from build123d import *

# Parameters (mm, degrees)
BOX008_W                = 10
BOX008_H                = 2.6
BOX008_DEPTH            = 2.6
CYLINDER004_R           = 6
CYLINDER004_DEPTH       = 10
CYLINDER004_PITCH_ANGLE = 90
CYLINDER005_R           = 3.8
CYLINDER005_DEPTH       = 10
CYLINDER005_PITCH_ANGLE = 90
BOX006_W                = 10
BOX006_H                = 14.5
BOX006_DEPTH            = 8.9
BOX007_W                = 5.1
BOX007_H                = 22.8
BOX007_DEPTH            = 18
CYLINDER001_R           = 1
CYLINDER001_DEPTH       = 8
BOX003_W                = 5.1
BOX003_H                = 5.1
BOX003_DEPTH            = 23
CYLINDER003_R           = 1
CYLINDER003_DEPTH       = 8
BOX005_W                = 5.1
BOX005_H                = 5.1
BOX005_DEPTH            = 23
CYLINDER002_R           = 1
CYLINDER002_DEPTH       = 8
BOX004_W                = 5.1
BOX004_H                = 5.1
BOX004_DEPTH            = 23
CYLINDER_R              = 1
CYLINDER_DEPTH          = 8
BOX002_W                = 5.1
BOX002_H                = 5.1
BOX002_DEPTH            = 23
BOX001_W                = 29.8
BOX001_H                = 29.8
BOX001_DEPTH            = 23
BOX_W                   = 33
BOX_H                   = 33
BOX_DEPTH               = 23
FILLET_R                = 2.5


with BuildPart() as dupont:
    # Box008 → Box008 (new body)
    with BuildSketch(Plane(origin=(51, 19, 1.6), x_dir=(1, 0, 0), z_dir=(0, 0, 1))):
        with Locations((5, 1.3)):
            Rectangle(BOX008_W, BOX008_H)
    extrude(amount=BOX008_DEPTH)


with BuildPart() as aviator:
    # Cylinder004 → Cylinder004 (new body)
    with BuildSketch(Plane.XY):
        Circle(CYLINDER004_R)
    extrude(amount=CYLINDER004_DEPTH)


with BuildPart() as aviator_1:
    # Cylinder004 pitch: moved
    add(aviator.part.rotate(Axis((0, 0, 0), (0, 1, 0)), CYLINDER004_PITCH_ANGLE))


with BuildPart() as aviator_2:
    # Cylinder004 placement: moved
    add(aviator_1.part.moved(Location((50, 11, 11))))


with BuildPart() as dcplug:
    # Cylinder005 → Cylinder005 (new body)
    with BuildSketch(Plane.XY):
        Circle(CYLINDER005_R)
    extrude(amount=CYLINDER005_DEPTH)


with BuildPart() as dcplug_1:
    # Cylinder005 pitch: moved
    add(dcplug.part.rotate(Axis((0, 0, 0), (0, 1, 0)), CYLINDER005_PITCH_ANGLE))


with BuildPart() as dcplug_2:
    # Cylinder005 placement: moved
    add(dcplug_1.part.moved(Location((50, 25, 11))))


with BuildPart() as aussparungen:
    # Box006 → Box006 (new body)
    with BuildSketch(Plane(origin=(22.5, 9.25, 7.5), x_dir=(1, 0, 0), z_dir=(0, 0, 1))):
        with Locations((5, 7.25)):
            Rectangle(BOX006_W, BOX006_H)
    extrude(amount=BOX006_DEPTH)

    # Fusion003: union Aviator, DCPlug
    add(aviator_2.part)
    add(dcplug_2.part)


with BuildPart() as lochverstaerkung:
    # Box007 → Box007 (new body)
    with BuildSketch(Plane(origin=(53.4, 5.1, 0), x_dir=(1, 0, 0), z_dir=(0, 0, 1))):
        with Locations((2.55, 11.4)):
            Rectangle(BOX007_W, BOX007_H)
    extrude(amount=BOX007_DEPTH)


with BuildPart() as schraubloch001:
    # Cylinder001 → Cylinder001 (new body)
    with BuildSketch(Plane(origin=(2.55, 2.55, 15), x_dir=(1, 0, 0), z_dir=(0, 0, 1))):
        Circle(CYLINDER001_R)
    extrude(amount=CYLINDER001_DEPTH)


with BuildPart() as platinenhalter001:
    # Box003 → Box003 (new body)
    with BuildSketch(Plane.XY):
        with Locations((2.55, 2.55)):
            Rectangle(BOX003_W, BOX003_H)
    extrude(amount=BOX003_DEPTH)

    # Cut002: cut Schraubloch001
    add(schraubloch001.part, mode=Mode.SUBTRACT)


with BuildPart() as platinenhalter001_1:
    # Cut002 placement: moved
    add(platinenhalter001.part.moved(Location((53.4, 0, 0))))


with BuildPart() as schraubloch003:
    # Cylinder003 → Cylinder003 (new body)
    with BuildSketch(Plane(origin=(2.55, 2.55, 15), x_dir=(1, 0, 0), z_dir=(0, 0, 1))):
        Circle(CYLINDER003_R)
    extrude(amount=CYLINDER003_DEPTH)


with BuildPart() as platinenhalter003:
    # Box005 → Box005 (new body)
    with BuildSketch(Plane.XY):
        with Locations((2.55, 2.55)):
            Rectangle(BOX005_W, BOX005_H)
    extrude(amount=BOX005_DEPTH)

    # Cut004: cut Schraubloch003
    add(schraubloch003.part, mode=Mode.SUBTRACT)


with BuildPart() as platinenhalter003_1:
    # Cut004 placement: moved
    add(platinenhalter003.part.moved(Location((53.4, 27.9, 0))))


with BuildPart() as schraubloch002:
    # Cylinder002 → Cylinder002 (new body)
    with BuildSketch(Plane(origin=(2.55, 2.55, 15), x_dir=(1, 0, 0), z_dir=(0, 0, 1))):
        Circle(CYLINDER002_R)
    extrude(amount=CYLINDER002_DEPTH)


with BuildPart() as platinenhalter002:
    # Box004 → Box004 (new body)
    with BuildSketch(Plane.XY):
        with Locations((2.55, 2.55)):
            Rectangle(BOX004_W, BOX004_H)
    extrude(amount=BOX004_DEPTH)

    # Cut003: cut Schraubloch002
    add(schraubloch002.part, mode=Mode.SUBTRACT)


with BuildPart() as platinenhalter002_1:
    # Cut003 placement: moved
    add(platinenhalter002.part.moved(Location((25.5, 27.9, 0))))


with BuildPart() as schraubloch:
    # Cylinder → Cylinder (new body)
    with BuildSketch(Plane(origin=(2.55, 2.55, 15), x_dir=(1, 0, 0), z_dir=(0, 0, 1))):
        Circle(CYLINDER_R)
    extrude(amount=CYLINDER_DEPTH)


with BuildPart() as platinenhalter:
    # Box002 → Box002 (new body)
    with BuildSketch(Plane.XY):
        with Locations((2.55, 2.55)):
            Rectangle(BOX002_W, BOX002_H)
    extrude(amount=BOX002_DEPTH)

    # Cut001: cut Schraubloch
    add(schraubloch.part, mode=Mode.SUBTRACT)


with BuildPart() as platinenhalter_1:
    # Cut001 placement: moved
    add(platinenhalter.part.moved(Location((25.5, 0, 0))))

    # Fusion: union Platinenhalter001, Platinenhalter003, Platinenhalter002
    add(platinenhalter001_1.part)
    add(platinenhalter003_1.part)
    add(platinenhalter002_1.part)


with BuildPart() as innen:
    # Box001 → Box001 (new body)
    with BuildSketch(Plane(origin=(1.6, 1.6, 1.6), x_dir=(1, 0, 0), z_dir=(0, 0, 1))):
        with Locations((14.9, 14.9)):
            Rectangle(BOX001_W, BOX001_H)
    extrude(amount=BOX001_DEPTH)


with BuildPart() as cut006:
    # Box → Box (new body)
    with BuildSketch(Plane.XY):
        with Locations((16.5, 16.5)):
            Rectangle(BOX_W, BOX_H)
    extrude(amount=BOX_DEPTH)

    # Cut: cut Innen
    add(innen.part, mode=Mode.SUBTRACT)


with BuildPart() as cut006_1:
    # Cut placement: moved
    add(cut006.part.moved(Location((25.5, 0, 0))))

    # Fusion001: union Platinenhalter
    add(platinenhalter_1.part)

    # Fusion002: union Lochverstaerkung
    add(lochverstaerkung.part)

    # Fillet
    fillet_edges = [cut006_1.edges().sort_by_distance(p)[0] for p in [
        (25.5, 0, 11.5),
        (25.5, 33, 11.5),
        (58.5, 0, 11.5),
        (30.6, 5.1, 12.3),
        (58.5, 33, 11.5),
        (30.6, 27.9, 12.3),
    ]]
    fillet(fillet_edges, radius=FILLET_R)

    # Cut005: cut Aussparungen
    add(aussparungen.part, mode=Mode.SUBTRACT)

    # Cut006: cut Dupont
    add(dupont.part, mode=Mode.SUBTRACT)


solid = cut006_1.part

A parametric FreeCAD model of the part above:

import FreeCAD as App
import Part
import Sketcher

V = App.Vector


def edges_at(feature, points):
    """Names of the edges that pass closest to the given points."""
    edges = feature.Shape.Edges
    near = lambda p: min(range(len(edges)), key=lambda i: edges[i].distToShape(Part.Vertex(*p))[0])
    return sorted({f"Edge{near(p) + 1}" for p in points})


def add_polygon(sketch, points):
    """Adds a closed chain of lines whose ends are joined by coincident constraints."""
    first, n = sketch.GeometryCount, len(points)
    for a, b in zip(points, points[1:] + points[:1]):
        sketch.addGeometry(Part.LineSegment(App.Vector(*a, 0), App.Vector(*b, 0)), False)
    for i in range(n):
        sketch.addConstraint(Sketcher.Constraint("Coincident", first + i, 2, first + (i + 1) % n, 1))

doc = App.newDocument("Part")
params = doc.addObject("Spreadsheet::Sheet", "Params")
for row, (alias, value) in enumerate([
    ("sketch1_width", "10 mm"),
    ("sketch1_height", "2.6 mm"),
    ("pad1_length", "2.6 mm"),
    ("sketch2_diameter", "12 mm"),
    ("pad2_length", "10 mm"),
    ("sketch3_diameter", "7.6 mm"),
    ("pad3_length", "10 mm"),
    ("sketch4_width", "10 mm"),
    ("sketch4_height", "14.5 mm"),
    ("pad4_length", "8.9 mm"),
    ("sketch5_width", "5.1 mm"),
    ("sketch5_height", "22.8 mm"),
    ("pad5_length", "18 mm"),
    ("sketch6_diameter", "2 mm"),
    ("pad6_length", "8 mm"),
    ("sketch7_width", "5.1 mm"),
    ("pad7_length", "23 mm"),
    ("sketch8_diameter", "2 mm"),
    ("pad8_length", "8 mm"),
    ("sketch9_width", "5.1 mm"),
    ("pad9_length", "23 mm"),
    ("sketch10_diameter", "2 mm"),
    ("pad10_length", "8 mm"),
    ("sketch11_width", "5.1 mm"),
    ("pad11_length", "23 mm"),
    ("sketch12_diameter", "2 mm"),
    ("pad12_length", "8 mm"),
    ("sketch13_width", "5.1 mm"),
    ("pad13_length", "23 mm"),
    ("sketch14_width", "29.8 mm"),
    ("pad14_length", "23 mm"),
    ("sketch15_width", "33 mm"),
    ("pad15_length", "23 mm"),
    ("fillet_radius", "2.5 mm"),
], start=1):
    params.set(f"A{row}", alias)
    params.set(f"B{row}", "=" + value)
    params.setAlias(f"B{row}", alias)

body = doc.addObject("PartDesign::Body", "Body")

# Sketch on XY plane
sketch1 = doc.addObject("Sketcher::SketchObject", "Sketch")
body.addObject(sketch1)
sketch1.AttachmentSupport = (doc.XY_Plane, [""])
sketch1.MapMode = "FlatFace"
sketch1.AttachmentOffset = App.Placement(V(0, 0, 1.6), App.Rotation())
add_polygon(sketch1, [(51, 21.6), (51, 19), (61, 19), (61, 21.6)])  # lines 0-3
sketch1.addConstraint([
    Sketcher.Constraint("Vertical", 0),
    Sketcher.Constraint("Horizontal", 1),
    Sketcher.Constraint("Vertical", 2),
    Sketcher.Constraint("Horizontal", 3),
    Sketcher.Constraint("DistanceX", 1, 1, 1, 2, 10.0),
    Sketcher.Constraint("DistanceY", 0, 2, 0, 1, 2.6),
    Sketcher.Constraint("DistanceX", -1, 1, 0, 2, 51.0),
    Sketcher.Constraint("DistanceY", -1, 1, 0, 2, 19.0),
])
sketch1.setExpression("Constraints[8]", "Params.sketch1_width")
sketch1.setExpression("Constraints[9]", "Params.sketch1_height")
pad1 = doc.addObject("PartDesign::Pad", "Pad")
body.addObject(pad1)
pad1.Profile = sketch1
pad1.setExpression("Length", "Params.pad1_length")
body2 = doc.addObject("PartDesign::Body", "Body001")

# Sketch on XY plane
sketch2 = doc.addObject("Sketcher::SketchObject", "Sketch001")
body2.addObject(sketch2)
sketch2.AttachmentSupport = (doc.getObject("XY_Plane001"), [""])
sketch2.MapMode = "FlatFace"
sketch2.addGeometry(Part.Circle(V(0, 0, 0), V(0, 0, 1), 6), False)
sketch2.addConstraint([
    Sketcher.Constraint("Coincident", 0, 3, -1, 1),
    Sketcher.Constraint("Diameter", 0, 12.0),
])
sketch2.setExpression("Constraints[1]", "Params.sketch2_diameter")
pad2 = doc.addObject("PartDesign::Pad", "Pad001")
body2.addObject(pad2)
pad2.Profile = sketch2
pad2.setExpression("Length", "Params.pad2_length")
body3 = doc.addObject("PartDesign::Body", "Body002")
doc.recompute()

body2.Placement = App.Placement(V(0, 0, 0), App.Rotation(V(0, 1, 0), 90))
boolean = doc.addObject("PartDesign::Boolean", "Boolean")
body3.addObject(boolean)
boolean.Type = "Fuse"
boolean.addObjects([body2])
body4 = doc.addObject("PartDesign::Body", "Body003")
doc.recompute()

body3.Placement = App.Placement(V(50, 11, 11), App.Rotation(V(0, 0, 1), 0))
boolean2 = doc.addObject("PartDesign::Boolean", "Boolean001")
body4.addObject(boolean2)
boolean2.Type = "Fuse"
boolean2.addObjects([body3])
body5 = doc.addObject("PartDesign::Body", "Body004")

# Sketch on XY plane
sketch3 = doc.addObject("Sketcher::SketchObject", "Sketch002")
body5.addObject(sketch3)
sketch3.AttachmentSupport = (doc.getObject("XY_Plane004"), [""])
sketch3.MapMode = "FlatFace"
sketch3.addGeometry(Part.Circle(V(0, 0, 0), V(0, 0, 1), 3.8), False)
sketch3.addConstraint([
    Sketcher.Constraint("Coincident", 0, 3, -1, 1),
    Sketcher.Constraint("Diameter", 0, 7.6),
])
sketch3.setExpression("Constraints[1]", "Params.sketch3_diameter")
pad3 = doc.addObject("PartDesign::Pad", "Pad002")
body5.addObject(pad3)
pad3.Profile = sketch3
pad3.setExpression("Length", "Params.pad3_length")
body6 = doc.addObject("PartDesign::Body", "Body005")
doc.recompute()

body5.Placement = App.Placement(V(0, 0, 0), App.Rotation(V(0, 1, 0), 90))
boolean3 = doc.addObject("PartDesign::Boolean", "Boolean002")
body6.addObject(boolean3)
boolean3.Type = "Fuse"
boolean3.addObjects([body5])
body7 = doc.addObject("PartDesign::Body", "Body006")
doc.recompute()

body6.Placement = App.Placement(V(50, 25, 11), App.Rotation(V(0, 0, 1), 0))
boolean4 = doc.addObject("PartDesign::Boolean", "Boolean003")
body7.addObject(boolean4)
boolean4.Type = "Fuse"
boolean4.addObjects([body6])
body8 = doc.addObject("PartDesign::Body", "Body007")
body8.AllowCompound = True

# Sketch on XY plane
sketch4 = doc.addObject("Sketcher::SketchObject", "Sketch003")
body8.addObject(sketch4)
sketch4.AttachmentSupport = (doc.getObject("XY_Plane007"), [""])
sketch4.MapMode = "FlatFace"
sketch4.AttachmentOffset = App.Placement(V(0, 0, 7.5), App.Rotation())
add_polygon(sketch4, [(22, 24), (22, 9), (32, 9), (32, 24)])  # lines 0-3
sketch4.addConstraint([
    Sketcher.Constraint("Vertical", 0),
    Sketcher.Constraint("Horizontal", 1),
    Sketcher.Constraint("Vertical", 2),
    Sketcher.Constraint("Horizontal", 3),
    Sketcher.Constraint("DistanceX", 1, 1, 1, 2, 10.0),
    Sketcher.Constraint("DistanceY", 0, 2, 0, 1, 14.5),
    Sketcher.Constraint("DistanceX", -1, 1, 0, 2, 22.5),
    Sketcher.Constraint("DistanceY", -1, 1, 0, 2, 9.25),
])
sketch4.setExpression("Constraints[8]", "Params.sketch4_width")
sketch4.setExpression("Constraints[9]", "Params.sketch4_height")
pad4 = doc.addObject("PartDesign::Pad", "Pad003")
body8.addObject(pad4)
pad4.Profile = sketch4
pad4.setExpression("Length", "Params.pad4_length")
doc.recompute()

boolean5 = doc.addObject("PartDesign::Boolean", "Boolean004")
body8.addObject(boolean5)
boolean5.Type = "Fuse"
boolean5.addObjects([body4])
doc.recompute()

boolean6 = doc.addObject("PartDesign::Boolean", "Boolean005")
body8.addObject(boolean6)
boolean6.Type = "Fuse"
boolean6.addObjects([body7])
body9 = doc.addObject("PartDesign::Body", "Body008")

# Sketch on XY plane
sketch5 = doc.addObject("Sketcher::SketchObject", "Sketch004")
body9.addObject(sketch5)
sketch5.AttachmentSupport = (doc.getObject("XY_Plane008"), [""])
sketch5.MapMode = "FlatFace"
add_polygon(sketch5, [(53, 28), (53, 5), (58, 5), (58, 28)])  # lines 0-3
sketch5.addConstraint([
    Sketcher.Constraint("Vertical", 0),
    Sketcher.Constraint("Horizontal", 1),
    Sketcher.Constraint("Vertical", 2),
    Sketcher.Constraint("Horizontal", 3),
    Sketcher.Constraint("DistanceX", 1, 1, 1, 2, 5.1),
    Sketcher.Constraint("DistanceY", 0, 2, 0, 1, 22.8),
    Sketcher.Constraint("DistanceX", -1, 1, 0, 2, 53.4),
    Sketcher.Constraint("DistanceY", -1, 1, 0, 2, 5.1),
])
sketch5.setExpression("Constraints[8]", "Params.sketch5_width")
sketch5.setExpression("Constraints[9]", "Params.sketch5_height")
pad5 = doc.addObject("PartDesign::Pad", "Pad004")
body9.addObject(pad5)
pad5.Profile = sketch5
pad5.setExpression("Length", "Params.pad5_length")
body10 = doc.addObject("PartDesign::Body", "Body009")

# Sketch on XY plane
sketch6 = doc.addObject("Sketcher::SketchObject", "Sketch005")
body10.addObject(sketch6)
sketch6.AttachmentSupport = (doc.getObject("XY_Plane009"), [""])
sketch6.MapMode = "FlatFace"
sketch6.AttachmentOffset = App.Placement(V(0, 0, 15), App.Rotation())
sketch6.addGeometry(Part.Circle(V(2.5, 2.5, 0), V(0, 0, 1), 1), False)
sketch6.addConstraint([
    Sketcher.Constraint("Diameter", 0, 2.0),
    Sketcher.Constraint("DistanceX", -1, 1, 0, 3, 2.55),
    Sketcher.Constraint("DistanceY", -1, 1, 0, 3, 2.55),
])
sketch6.setExpression("Constraints[0]", "Params.sketch6_diameter")
pad6 = doc.addObject("PartDesign::Pad", "Pad005")
body10.addObject(pad6)
pad6.Profile = sketch6
pad6.setExpression("Length", "Params.pad6_length")
body11 = doc.addObject("PartDesign::Body", "Body010")

# Sketch on XY plane
sketch7 = doc.addObject("Sketcher::SketchObject", "Sketch006")
body11.addObject(sketch7)
sketch7.AttachmentSupport = (doc.getObject("XY_Plane010"), [""])
sketch7.MapMode = "FlatFace"
add_polygon(sketch7, [(0, 5), (0, 0), (5, 0), (5, 5)])  # lines 0-3
sketch7.addConstraint([
    Sketcher.Constraint("Vertical", 0),
    Sketcher.Constraint("Horizontal", 1),
    Sketcher.Constraint("Vertical", 2),
    Sketcher.Constraint("Horizontal", 3),
    Sketcher.Constraint("Coincident", 0, 2, -1, 1),
    Sketcher.Constraint("Equal", 3, 0),
    Sketcher.Constraint("DistanceX", 1, 1, 1, 2, 5.1),
])
sketch7.setExpression("Constraints[10]", "Params.sketch7_width")
pad7 = doc.addObject("PartDesign::Pad", "Pad006")
body11.addObject(pad7)
pad7.Profile = sketch7
pad7.setExpression("Length", "Params.pad7_length")
doc.recompute()

boolean7 = doc.addObject("PartDesign::Boolean", "Boolean006")
body11.addObject(boolean7)
boolean7.Type = "Cut"
boolean7.addObjects([body10])
body12 = doc.addObject("PartDesign::Body", "Body011")
doc.recompute()

body11.Placement = App.Placement(V(53.4, 0, 0), App.Rotation(V(0, 0, 1), 0))
boolean8 = doc.addObject("PartDesign::Boolean", "Boolean007")
body12.addObject(boolean8)
boolean8.Type = "Fuse"
boolean8.addObjects([body11])
body13 = doc.addObject("PartDesign::Body", "Body012")

# Sketch on XY plane
sketch8 = doc.addObject("Sketcher::SketchObject", "Sketch007")
body13.addObject(sketch8)
sketch8.AttachmentSupport = (doc.getObject("XY_Plane012"), [""])
sketch8.MapMode = "FlatFace"
sketch8.AttachmentOffset = App.Placement(V(0, 0, 15), App.Rotation())
sketch8.addGeometry(Part.Circle(V(2.5, 2.5, 0), V(0, 0, 1), 1), False)
sketch8.addConstraint([
    Sketcher.Constraint("Diameter", 0, 2.0),
    Sketcher.Constraint("DistanceX", -1, 1, 0, 3, 2.55),
    Sketcher.Constraint("DistanceY", -1, 1, 0, 3, 2.55),
])
sketch8.setExpression("Constraints[0]", "Params.sketch8_diameter")
pad8 = doc.addObject("PartDesign::Pad", "Pad007")
body13.addObject(pad8)
pad8.Profile = sketch8
pad8.setExpression("Length", "Params.pad8_length")
body14 = doc.addObject("PartDesign::Body", "Body013")

# Sketch on XY plane
sketch9 = doc.addObject("Sketcher::SketchObject", "Sketch008")
body14.addObject(sketch9)
sketch9.AttachmentSupport = (doc.getObject("XY_Plane013"), [""])
sketch9.MapMode = "FlatFace"
add_polygon(sketch9, [(0, 5), (0, 0), (5, 0), (5, 5)])  # lines 0-3
sketch9.addConstraint([
    Sketcher.Constraint("Vertical", 0),
    Sketcher.Constraint("Horizontal", 1),
    Sketcher.Constraint("Vertical", 2),
    Sketcher.Constraint("Horizontal", 3),
    Sketcher.Constraint("Coincident", 0, 2, -1, 1),
    Sketcher.Constraint("Equal", 3, 0),
    Sketcher.Constraint("DistanceX", 1, 1, 1, 2, 5.1),
])
sketch9.setExpression("Constraints[10]", "Params.sketch9_width")
pad9 = doc.addObject("PartDesign::Pad", "Pad008")
body14.addObject(pad9)
pad9.Profile = sketch9
pad9.setExpression("Length", "Params.pad9_length")
doc.recompute()

boolean9 = doc.addObject("PartDesign::Boolean", "Boolean008")
body14.addObject(boolean9)
boolean9.Type = "Cut"
boolean9.addObjects([body13])
body15 = doc.addObject("PartDesign::Body", "Body014")
doc.recompute()

body14.Placement = App.Placement(V(53.4, 27.9, 0), App.Rotation(V(0, 0, 1), 0))
boolean10 = doc.addObject("PartDesign::Boolean", "Boolean009")
body15.addObject(boolean10)
boolean10.Type = "Fuse"
boolean10.addObjects([body14])
body16 = doc.addObject("PartDesign::Body", "Body015")

# Sketch on XY plane
sketch10 = doc.addObject("Sketcher::SketchObject", "Sketch009")
body16.addObject(sketch10)
sketch10.AttachmentSupport = (doc.getObject("XY_Plane015"), [""])
sketch10.MapMode = "FlatFace"
sketch10.AttachmentOffset = App.Placement(V(0, 0, 15), App.Rotation())
sketch10.addGeometry(Part.Circle(V(2.5, 2.5, 0), V(0, 0, 1), 1), False)
sketch10.addConstraint([
    Sketcher.Constraint("Diameter", 0, 2.0),
    Sketcher.Constraint("DistanceX", -1, 1, 0, 3, 2.55),
    Sketcher.Constraint("DistanceY", -1, 1, 0, 3, 2.55),
])
sketch10.setExpression("Constraints[0]", "Params.sketch10_diameter")
pad10 = doc.addObject("PartDesign::Pad", "Pad009")
body16.addObject(pad10)
pad10.Profile = sketch10
pad10.setExpression("Length", "Params.pad10_length")
body17 = doc.addObject("PartDesign::Body", "Body016")

# Sketch on XY plane
sketch11 = doc.addObject("Sketcher::SketchObject", "Sketch010")
body17.addObject(sketch11)
sketch11.AttachmentSupport = (doc.getObject("XY_Plane016"), [""])
sketch11.MapMode = "FlatFace"
add_polygon(sketch11, [(0, 5), (0, 0), (5, 0), (5, 5)])  # lines 0-3
sketch11.addConstraint([
    Sketcher.Constraint("Vertical", 0),
    Sketcher.Constraint("Horizontal", 1),
    Sketcher.Constraint("Vertical", 2),
    Sketcher.Constraint("Horizontal", 3),
    Sketcher.Constraint("Coincident", 0, 2, -1, 1),
    Sketcher.Constraint("Equal", 3, 0),
    Sketcher.Constraint("DistanceX", 1, 1, 1, 2, 5.1),
])
sketch11.setExpression("Constraints[10]", "Params.sketch11_width")
pad11 = doc.addObject("PartDesign::Pad", "Pad010")
body17.addObject(pad11)
pad11.Profile = sketch11
pad11.setExpression("Length", "Params.pad11_length")
doc.recompute()

boolean11 = doc.addObject("PartDesign::Boolean", "Boolean010")
body17.addObject(boolean11)
boolean11.Type = "Cut"
boolean11.addObjects([body16])
body18 = doc.addObject("PartDesign::Body", "Body017")
doc.recompute()

body17.Placement = App.Placement(V(25.5, 27.9, 0), App.Rotation(V(0, 0, 1), 0))
boolean12 = doc.addObject("PartDesign::Boolean", "Boolean011")
body18.addObject(boolean12)
boolean12.Type = "Fuse"
boolean12.addObjects([body17])
body19 = doc.addObject("PartDesign::Body", "Body018")

# Sketch on XY plane
sketch12 = doc.addObject("Sketcher::SketchObject", "Sketch011")
body19.addObject(sketch12)
sketch12.AttachmentSupport = (doc.getObject("XY_Plane018"), [""])
sketch12.MapMode = "FlatFace"
sketch12.AttachmentOffset = App.Placement(V(0, 0, 15), App.Rotation())
sketch12.addGeometry(Part.Circle(V(2.5, 2.5, 0), V(0, 0, 1), 1), False)
sketch12.addConstraint([
    Sketcher.Constraint("Diameter", 0, 2.0),
    Sketcher.Constraint("DistanceX", -1, 1, 0, 3, 2.55),
    Sketcher.Constraint("DistanceY", -1, 1, 0, 3, 2.55),
])
sketch12.setExpression("Constraints[0]", "Params.sketch12_diameter")
pad12 = doc.addObject("PartDesign::Pad", "Pad011")
body19.addObject(pad12)
pad12.Profile = sketch12
pad12.setExpression("Length", "Params.pad12_length")
body20 = doc.addObject("PartDesign::Body", "Body019")

# Sketch on XY plane
sketch13 = doc.addObject("Sketcher::SketchObject", "Sketch012")
body20.addObject(sketch13)
sketch13.AttachmentSupport = (doc.getObject("XY_Plane019"), [""])
sketch13.MapMode = "FlatFace"
add_polygon(sketch13, [(0, 5), (0, 0), (5, 0), (5, 5)])  # lines 0-3
sketch13.addConstraint([
    Sketcher.Constraint("Vertical", 0),
    Sketcher.Constraint("Horizontal", 1),
    Sketcher.Constraint("Vertical", 2),
    Sketcher.Constraint("Horizontal", 3),
    Sketcher.Constraint("Coincident", 0, 2, -1, 1),
    Sketcher.Constraint("Equal", 3, 0),
    Sketcher.Constraint("DistanceX", 1, 1, 1, 2, 5.1),
])
sketch13.setExpression("Constraints[10]", "Params.sketch13_width")
pad13 = doc.addObject("PartDesign::Pad", "Pad012")
body20.addObject(pad13)
pad13.Profile = sketch13
pad13.setExpression("Length", "Params.pad13_length")
doc.recompute()

boolean13 = doc.addObject("PartDesign::Boolean", "Boolean012")
body20.addObject(boolean13)
boolean13.Type = "Cut"
boolean13.addObjects([body19])
body21 = doc.addObject("PartDesign::Body", "Body020")
body21.AllowCompound = True
doc.recompute()

body20.Placement = App.Placement(V(25.5, 0, 0), App.Rotation(V(0, 0, 1), 0))
boolean14 = doc.addObject("PartDesign::Boolean", "Boolean013")
body21.addObject(boolean14)
boolean14.Type = "Fuse"
boolean14.addObjects([body20])
doc.recompute()

boolean15 = doc.addObject("PartDesign::Boolean", "Boolean014")
body21.addObject(boolean15)
boolean15.Type = "Fuse"
boolean15.addObjects([body12])
doc.recompute()

boolean16 = doc.addObject("PartDesign::Boolean", "Boolean015")
body21.addObject(boolean16)
boolean16.Type = "Fuse"
boolean16.addObjects([body15])
doc.recompute()

boolean17 = doc.addObject("PartDesign::Boolean", "Boolean016")
body21.addObject(boolean17)
boolean17.Type = "Fuse"
boolean17.addObjects([body18])
body22 = doc.addObject("PartDesign::Body", "Body021")

# Sketch on XY plane
sketch14 = doc.addObject("Sketcher::SketchObject", "Sketch013")
body22.addObject(sketch14)
sketch14.AttachmentSupport = (doc.getObject("XY_Plane021"), [""])
sketch14.MapMode = "FlatFace"
sketch14.AttachmentOffset = App.Placement(V(0, 0, 1.6), App.Rotation())
add_polygon(sketch14, [(2, 31), (2, 2), (31, 2), (31, 31)])  # lines 0-3
sketch14.addConstraint([
    Sketcher.Constraint("Vertical", 0),
    Sketcher.Constraint("Horizontal", 1),
    Sketcher.Constraint("Vertical", 2),
    Sketcher.Constraint("Horizontal", 3),
    Sketcher.Constraint("Equal", 3, 0),
    Sketcher.Constraint("DistanceX", 1, 1, 1, 2, 29.8),
    Sketcher.Constraint("DistanceX", -1, 1, 0, 2, 1.6),
    Sketcher.Constraint("DistanceY", -1, 1, 0, 2, 1.6),
])
sketch14.setExpression("Constraints[9]", "Params.sketch14_width")
pad14 = doc.addObject("PartDesign::Pad", "Pad013")
body22.addObject(pad14)
pad14.Profile = sketch14
pad14.setExpression("Length", "Params.pad14_length")
body23 = doc.addObject("PartDesign::Body", "Body022")

# Sketch on XY plane
sketch15 = doc.addObject("Sketcher::SketchObject", "Sketch014")
body23.addObject(sketch15)
sketch15.AttachmentSupport = (doc.getObject("XY_Plane022"), [""])
sketch15.MapMode = "FlatFace"
add_polygon(sketch15, [(0, 33), (0, 0), (33, 0), (33, 33)])  # lines 0-3
sketch15.addConstraint([
    Sketcher.Constraint("Vertical", 0),
    Sketcher.Constraint("Horizontal", 1),
    Sketcher.Constraint("Vertical", 2),
    Sketcher.Constraint("Horizontal", 3),
    Sketcher.Constraint("Coincident", 0, 2, -1, 1),
    Sketcher.Constraint("Equal", 3, 0),
    Sketcher.Constraint("DistanceX", 1, 1, 1, 2, 33.0),
])
sketch15.setExpression("Constraints[10]", "Params.sketch15_width")
pad15 = doc.addObject("PartDesign::Pad", "Pad014")
body23.addObject(pad15)
pad15.Profile = sketch15
pad15.setExpression("Length", "Params.pad15_length")
doc.recompute()

boolean18 = doc.addObject("PartDesign::Boolean", "Boolean017")
body23.addObject(boolean18)
boolean18.Type = "Cut"
boolean18.addObjects([body22])
body24 = doc.addObject("PartDesign::Body", "Body023")
doc.recompute()

body23.Placement = App.Placement(V(25.5, 0, 0), App.Rotation(V(0, 0, 1), 0))
boolean19 = doc.addObject("PartDesign::Boolean", "Boolean018")
body24.addObject(boolean19)
boolean19.Type = "Fuse"
boolean19.addObjects([body23])
doc.recompute()

boolean20 = doc.addObject("PartDesign::Boolean", "Boolean019")
body24.addObject(boolean20)
boolean20.Type = "Fuse"
boolean20.addObjects([body21])
doc.recompute()

boolean21 = doc.addObject("PartDesign::Boolean", "Boolean020")
body24.addObject(boolean21)
boolean21.Type = "Fuse"
boolean21.addObjects([body9])
doc.recompute()

fillet = doc.addObject("PartDesign::Fillet", "Fillet")
body24.addObject(fillet)
fillet.Base = (boolean21, edges_at(boolean21, [
    (25.5, 0, 11.5),
    (25.5, 33, 11.5),
    (58.5, 0, 11.5),
    (30.6, 5.1, 12.3),
    (58.5, 33, 11.5),
    (30.6, 27.9, 12.3),
]))
fillet.setExpression("Radius", "Params.fillet_radius")
doc.recompute()

boolean22 = doc.addObject("PartDesign::Boolean", "Boolean021")
body24.addObject(boolean22)
boolean22.Type = "Cut"
boolean22.addObjects([body8])
doc.recompute()

boolean23 = doc.addObject("PartDesign::Boolean", "Boolean022")
body24.addObject(boolean23)
boolean23.Type = "Cut"
boolean23.addObjects([body])

doc.recompute()
